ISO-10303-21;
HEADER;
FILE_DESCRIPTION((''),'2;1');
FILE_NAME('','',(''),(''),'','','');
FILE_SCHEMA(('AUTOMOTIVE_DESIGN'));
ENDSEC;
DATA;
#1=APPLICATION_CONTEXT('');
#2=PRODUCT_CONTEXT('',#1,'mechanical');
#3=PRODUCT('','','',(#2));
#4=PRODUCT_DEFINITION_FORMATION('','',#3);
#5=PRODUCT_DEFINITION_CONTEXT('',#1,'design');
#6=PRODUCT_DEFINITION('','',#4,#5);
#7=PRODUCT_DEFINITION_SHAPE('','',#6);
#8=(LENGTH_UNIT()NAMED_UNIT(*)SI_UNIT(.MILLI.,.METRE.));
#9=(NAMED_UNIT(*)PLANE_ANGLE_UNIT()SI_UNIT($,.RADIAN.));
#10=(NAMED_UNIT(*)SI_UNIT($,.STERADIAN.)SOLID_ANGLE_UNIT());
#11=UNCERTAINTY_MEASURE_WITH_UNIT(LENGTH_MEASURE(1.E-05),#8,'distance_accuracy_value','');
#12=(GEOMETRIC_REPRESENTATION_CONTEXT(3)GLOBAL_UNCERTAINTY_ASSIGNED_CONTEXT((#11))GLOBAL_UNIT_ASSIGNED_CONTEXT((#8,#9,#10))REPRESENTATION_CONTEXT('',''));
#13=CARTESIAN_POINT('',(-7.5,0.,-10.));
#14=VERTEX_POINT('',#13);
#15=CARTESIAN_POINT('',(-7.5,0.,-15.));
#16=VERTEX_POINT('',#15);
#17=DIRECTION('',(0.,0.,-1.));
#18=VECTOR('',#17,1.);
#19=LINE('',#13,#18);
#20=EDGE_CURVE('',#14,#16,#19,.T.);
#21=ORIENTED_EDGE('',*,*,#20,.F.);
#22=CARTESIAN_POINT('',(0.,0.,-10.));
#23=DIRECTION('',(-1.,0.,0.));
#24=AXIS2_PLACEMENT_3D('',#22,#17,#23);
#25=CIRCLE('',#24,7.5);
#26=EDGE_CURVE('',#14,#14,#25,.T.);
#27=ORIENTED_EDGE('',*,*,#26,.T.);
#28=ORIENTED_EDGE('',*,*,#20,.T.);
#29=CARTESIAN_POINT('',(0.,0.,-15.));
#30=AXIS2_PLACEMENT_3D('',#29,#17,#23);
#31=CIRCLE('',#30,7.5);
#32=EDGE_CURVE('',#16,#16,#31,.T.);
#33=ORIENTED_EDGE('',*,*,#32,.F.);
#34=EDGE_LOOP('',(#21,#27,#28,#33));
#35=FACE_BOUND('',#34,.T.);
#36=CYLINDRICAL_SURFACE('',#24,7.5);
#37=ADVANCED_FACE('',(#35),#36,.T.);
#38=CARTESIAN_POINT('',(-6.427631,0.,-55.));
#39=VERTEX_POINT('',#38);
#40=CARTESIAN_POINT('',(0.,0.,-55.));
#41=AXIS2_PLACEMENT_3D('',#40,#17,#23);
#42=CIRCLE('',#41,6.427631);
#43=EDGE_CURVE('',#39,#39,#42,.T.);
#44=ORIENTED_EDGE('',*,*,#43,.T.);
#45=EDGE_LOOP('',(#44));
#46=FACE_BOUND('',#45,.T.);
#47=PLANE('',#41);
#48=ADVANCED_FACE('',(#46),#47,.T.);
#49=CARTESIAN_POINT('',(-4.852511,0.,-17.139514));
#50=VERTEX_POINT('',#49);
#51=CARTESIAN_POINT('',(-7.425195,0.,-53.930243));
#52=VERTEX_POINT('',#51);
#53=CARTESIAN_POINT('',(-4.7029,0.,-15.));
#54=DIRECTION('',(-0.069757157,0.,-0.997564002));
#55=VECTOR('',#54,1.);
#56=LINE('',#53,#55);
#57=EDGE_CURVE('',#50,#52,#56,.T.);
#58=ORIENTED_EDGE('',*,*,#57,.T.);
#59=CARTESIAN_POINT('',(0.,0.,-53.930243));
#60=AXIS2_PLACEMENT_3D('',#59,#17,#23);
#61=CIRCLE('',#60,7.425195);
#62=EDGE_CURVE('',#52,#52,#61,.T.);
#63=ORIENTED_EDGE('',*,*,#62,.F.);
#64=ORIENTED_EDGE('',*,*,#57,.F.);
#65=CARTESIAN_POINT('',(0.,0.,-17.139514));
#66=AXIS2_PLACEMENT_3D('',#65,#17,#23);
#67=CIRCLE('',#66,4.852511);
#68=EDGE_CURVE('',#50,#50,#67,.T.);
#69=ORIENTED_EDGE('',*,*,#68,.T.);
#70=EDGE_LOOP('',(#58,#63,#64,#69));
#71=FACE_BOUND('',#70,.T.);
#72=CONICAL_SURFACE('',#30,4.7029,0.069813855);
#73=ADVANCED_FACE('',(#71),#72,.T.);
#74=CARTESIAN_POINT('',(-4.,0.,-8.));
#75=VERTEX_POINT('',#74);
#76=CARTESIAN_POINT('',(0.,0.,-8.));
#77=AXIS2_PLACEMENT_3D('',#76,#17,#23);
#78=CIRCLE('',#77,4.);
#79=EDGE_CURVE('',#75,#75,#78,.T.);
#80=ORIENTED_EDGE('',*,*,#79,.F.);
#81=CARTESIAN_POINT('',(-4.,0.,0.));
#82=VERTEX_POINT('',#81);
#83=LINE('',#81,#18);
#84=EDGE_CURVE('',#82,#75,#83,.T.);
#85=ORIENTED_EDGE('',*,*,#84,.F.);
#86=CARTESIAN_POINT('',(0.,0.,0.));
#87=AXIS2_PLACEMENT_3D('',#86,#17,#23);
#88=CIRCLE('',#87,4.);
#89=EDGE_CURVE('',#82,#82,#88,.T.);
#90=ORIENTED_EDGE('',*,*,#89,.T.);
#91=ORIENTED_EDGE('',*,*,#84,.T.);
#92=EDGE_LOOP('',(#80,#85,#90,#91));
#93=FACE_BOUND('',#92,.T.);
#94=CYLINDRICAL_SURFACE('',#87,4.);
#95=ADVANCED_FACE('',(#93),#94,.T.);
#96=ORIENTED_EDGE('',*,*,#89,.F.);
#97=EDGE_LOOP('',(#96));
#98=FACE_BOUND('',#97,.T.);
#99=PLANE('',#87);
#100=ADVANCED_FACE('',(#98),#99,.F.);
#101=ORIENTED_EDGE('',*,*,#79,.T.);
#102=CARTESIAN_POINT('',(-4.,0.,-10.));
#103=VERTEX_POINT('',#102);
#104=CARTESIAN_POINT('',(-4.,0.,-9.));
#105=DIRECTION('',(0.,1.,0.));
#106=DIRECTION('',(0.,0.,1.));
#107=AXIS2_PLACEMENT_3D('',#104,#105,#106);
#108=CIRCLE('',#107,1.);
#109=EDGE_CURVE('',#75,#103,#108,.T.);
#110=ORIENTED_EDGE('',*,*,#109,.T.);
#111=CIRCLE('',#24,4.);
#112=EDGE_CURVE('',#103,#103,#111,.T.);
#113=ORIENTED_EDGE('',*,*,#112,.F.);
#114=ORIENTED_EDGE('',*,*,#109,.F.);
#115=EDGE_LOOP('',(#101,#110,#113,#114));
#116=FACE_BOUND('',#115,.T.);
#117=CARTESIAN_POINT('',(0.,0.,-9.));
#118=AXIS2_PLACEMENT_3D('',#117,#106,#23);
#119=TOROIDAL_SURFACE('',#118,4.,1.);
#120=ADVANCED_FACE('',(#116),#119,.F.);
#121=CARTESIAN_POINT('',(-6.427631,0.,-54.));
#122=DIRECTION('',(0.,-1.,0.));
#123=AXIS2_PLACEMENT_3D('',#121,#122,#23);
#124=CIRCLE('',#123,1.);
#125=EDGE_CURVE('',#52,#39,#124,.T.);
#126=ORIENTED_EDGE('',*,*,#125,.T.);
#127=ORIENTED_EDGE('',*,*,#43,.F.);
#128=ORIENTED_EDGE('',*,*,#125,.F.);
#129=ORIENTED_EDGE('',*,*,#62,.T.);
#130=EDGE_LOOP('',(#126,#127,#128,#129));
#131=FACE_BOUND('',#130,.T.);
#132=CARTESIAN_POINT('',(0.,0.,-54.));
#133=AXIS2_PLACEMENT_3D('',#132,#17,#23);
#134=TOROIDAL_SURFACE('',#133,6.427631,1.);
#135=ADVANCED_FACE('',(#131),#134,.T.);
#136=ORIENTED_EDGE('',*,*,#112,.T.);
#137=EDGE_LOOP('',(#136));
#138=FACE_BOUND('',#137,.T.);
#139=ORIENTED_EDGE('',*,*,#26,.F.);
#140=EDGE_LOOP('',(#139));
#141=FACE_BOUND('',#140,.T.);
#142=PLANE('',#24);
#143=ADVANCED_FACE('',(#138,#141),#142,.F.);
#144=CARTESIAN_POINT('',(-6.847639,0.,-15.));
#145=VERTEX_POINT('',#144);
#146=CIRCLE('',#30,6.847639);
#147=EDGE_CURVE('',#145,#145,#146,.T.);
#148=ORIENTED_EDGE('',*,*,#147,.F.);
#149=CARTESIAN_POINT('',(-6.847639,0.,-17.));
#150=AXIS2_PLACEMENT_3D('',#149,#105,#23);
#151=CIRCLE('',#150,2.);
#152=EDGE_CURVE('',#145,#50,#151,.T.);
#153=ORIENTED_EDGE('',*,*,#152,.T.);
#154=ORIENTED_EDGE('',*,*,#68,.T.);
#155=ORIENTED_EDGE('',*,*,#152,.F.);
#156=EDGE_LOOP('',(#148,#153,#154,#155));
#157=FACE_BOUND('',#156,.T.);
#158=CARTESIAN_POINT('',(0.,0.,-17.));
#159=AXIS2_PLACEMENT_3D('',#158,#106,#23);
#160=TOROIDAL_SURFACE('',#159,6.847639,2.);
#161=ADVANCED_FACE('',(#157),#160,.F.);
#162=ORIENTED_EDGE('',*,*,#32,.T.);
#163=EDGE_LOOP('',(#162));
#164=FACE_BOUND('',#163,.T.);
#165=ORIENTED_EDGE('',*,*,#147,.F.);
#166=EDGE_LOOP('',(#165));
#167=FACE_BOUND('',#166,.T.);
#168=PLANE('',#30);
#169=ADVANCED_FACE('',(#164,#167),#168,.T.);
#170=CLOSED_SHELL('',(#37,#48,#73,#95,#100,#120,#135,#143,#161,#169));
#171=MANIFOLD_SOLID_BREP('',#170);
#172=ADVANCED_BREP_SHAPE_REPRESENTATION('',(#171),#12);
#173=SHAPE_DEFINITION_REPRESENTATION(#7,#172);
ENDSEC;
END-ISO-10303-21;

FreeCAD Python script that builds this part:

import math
import FreeCAD as App
import Part
import Sketcher

V = App.Vector
Q = App.Units.Quantity


def edges_at(feature, points):
    """Names of the edges that pass closest to the given points."""
    edges = feature.Shape.Edges
    near = lambda p: min(range(len(edges)), key=lambda i: edges[i].distToShape(Part.Vertex(*p))[0])
    return sorted({f"Edge{near(p) + 1}" for p in points})

doc = App.newDocument("Part")
params = doc.addObject("Spreadsheet::Sheet", "Params")
for row, (alias, value) in enumerate([
    ("sketch1_width", "4 mm"),
    ("sketch1_height", "55 mm"),
    ("sketch1_height2", "5 mm"),
    ("sketch1_height3", "8 mm"),
    ("sketch1_width2", "7.5 mm"),
    ("revolution_angle", "360 deg"),
    ("fillet_radius", "2 mm"),
    ("fillet2_radius", "1 mm"),
], start=1):
    params.set(f"A{row}", alias)
    params.set(f"B{row}", "=" + value)
    params.setAlias(f"B{row}", alias)

body = doc.addObject("PartDesign::Body", "Body")

# Sketch on XZ plane
sketch1 = body.newObject("Sketcher::SketchObject", "Sketch")
sketch1.AttachmentSupport = (doc.getObject("XZ_Plane"), [""])
sketch1.MapMode = "FlatFace"
sketch1.addGeometry(Part.LineSegment(V(-4, 0, 0), V(0, 0, 0)), False)
sketch1.addGeometry(Part.LineSegment(V(0, 0, 0), V(0, -55, 0)), False)
sketch1.addGeometry(Part.LineSegment(V(0, -55, 0), V(-7.5, -55, 0)), False)
sketch1.addGeometry(Part.LineSegment(V(-7.5, -55, 0), V(-4.7029, -15, 0)), False)
sketch1.addGeometry(Part.LineSegment(V(-4.7029, -15, 0), V(-7.5, -15, 0)), False)
sketch1.addGeometry(Part.LineSegment(V(-7.5, -15, 0), V(-7.5, -10, 0)), False)
sketch1.addGeometry(Part.LineSegment(V(-7.5, -10, 0), V(-4, -10, 0)), False)
sketch1.addGeometry(Part.ArcOfCircle(Part.Circle(V(-4, -9, 0), V(0, 0, 1), 1), math.radians(-90), math.radians(90)), False)
sketch1.addGeometry(Part.LineSegment(V(-4, -8, 0), V(-4, 0, 0)), False)
sketch1.addConstraint(Sketcher.Constraint("Coincident", 0, 2, 1, 1))
sketch1.addConstraint(Sketcher.Constraint("Coincident", 1, 2, 2, 1))
sketch1.addConstraint(Sketcher.Constraint("Coincident", 2, 2, 3, 1))
sketch1.addConstraint(Sketcher.Constraint("Coincident", 3, 2, 4, 1))
sketch1.addConstraint(Sketcher.Constraint("Coincident", 4, 2, 5, 1))
sketch1.addConstraint(Sketcher.Constraint("Coincident", 5, 2, 6, 1))
sketch1.addConstraint(Sketcher.Constraint("Tangent", 6, 2, 7, 1))
sketch1.addConstraint(Sketcher.Constraint("Coincident", 7, 2, 8, 1))
sketch1.addConstraint(Sketcher.Constraint("Coincident", 8, 2, 0, 1))
sketch1.addConstraint(Sketcher.Constraint("Horizontal", 0))
sketch1.addConstraint(Sketcher.Constraint("Vertical", 1))
sketch1.addConstraint(Sketcher.Constraint("Horizontal", 2))
sketch1.addConstraint(Sketcher.Constraint("Horizontal", 4))
sketch1.addConstraint(Sketcher.Constraint("Vertical", 5))
sketch1.addConstraint(Sketcher.Constraint("Horizontal", 6))
sketch1.addConstraint(Sketcher.Constraint("Vertical", 8))
sketch1.addConstraint(Sketcher.Constraint("Coincident", 0, 2, -1, 1))
sketch1.addConstraint(Sketcher.Constraint("Vertical", 2, 2, 4, 2))
sketch1.addConstraint(Sketcher.Constraint("Vertical", 6, 2, 7, 2))
sketch1.addConstraint(Sketcher.Constraint("DistanceX", 0, 1, 0, 2, 4.0))
sketch1.addConstraint(Sketcher.Constraint("DistanceY", 1, 2, 1, 1, 55.0))
sketch1.addConstraint(Sketcher.Constraint("DistanceY", 5, 1, 5, 2, 5.0))
sketch1.addConstraint(Sketcher.Constraint("DistanceY", 8, 1, 8, 2, 8.0))
sketch1.addConstraint(Sketcher.Constraint("DistanceY", 3, 2, -1, 1, 15.0))
sketch1.addConstraint(Sketcher.Constraint("Angle", 3, Q("86 deg")))
sketch1.addConstraint(Sketcher.Constraint("DistanceX", 2, 2, 2, 1, 7.5))
sketch1.setExpression("Constraints[19]", "Params.sketch1_width")
sketch1.setExpression("Constraints[20]", "Params.sketch1_height")
sketch1.setExpression("Constraints[21]", "Params.sketch1_height2")
sketch1.setExpression("Constraints[22]", "Params.sketch1_height3")
sketch1.setExpression("Constraints[25]", "Params.sketch1_width2")
revolution = body.newObject("PartDesign::Revolution", "Revolution")
revolution.Profile = sketch1
revolution.ReferenceAxis = (sketch1, ["V_Axis"])
revolution.setExpression("Angle", "Params.revolution_angle")
doc.recompute()

fillet = body.newObject("PartDesign::Fillet", "Fillet")
fillet.Base = (revolution, edges_at(revolution, [(4.703, 0, -15)]))
fillet.setExpression("Radius", "Params.fillet_radius")
doc.recompute()

fillet2 = body.newObject("PartDesign::Fillet", "Fillet001")
fillet2.Base = (fillet, edges_at(fillet, [(7.5, 0, -55)]))
fillet2.setExpression("Radius", "Params.fillet2_radius")

doc.recompute()
